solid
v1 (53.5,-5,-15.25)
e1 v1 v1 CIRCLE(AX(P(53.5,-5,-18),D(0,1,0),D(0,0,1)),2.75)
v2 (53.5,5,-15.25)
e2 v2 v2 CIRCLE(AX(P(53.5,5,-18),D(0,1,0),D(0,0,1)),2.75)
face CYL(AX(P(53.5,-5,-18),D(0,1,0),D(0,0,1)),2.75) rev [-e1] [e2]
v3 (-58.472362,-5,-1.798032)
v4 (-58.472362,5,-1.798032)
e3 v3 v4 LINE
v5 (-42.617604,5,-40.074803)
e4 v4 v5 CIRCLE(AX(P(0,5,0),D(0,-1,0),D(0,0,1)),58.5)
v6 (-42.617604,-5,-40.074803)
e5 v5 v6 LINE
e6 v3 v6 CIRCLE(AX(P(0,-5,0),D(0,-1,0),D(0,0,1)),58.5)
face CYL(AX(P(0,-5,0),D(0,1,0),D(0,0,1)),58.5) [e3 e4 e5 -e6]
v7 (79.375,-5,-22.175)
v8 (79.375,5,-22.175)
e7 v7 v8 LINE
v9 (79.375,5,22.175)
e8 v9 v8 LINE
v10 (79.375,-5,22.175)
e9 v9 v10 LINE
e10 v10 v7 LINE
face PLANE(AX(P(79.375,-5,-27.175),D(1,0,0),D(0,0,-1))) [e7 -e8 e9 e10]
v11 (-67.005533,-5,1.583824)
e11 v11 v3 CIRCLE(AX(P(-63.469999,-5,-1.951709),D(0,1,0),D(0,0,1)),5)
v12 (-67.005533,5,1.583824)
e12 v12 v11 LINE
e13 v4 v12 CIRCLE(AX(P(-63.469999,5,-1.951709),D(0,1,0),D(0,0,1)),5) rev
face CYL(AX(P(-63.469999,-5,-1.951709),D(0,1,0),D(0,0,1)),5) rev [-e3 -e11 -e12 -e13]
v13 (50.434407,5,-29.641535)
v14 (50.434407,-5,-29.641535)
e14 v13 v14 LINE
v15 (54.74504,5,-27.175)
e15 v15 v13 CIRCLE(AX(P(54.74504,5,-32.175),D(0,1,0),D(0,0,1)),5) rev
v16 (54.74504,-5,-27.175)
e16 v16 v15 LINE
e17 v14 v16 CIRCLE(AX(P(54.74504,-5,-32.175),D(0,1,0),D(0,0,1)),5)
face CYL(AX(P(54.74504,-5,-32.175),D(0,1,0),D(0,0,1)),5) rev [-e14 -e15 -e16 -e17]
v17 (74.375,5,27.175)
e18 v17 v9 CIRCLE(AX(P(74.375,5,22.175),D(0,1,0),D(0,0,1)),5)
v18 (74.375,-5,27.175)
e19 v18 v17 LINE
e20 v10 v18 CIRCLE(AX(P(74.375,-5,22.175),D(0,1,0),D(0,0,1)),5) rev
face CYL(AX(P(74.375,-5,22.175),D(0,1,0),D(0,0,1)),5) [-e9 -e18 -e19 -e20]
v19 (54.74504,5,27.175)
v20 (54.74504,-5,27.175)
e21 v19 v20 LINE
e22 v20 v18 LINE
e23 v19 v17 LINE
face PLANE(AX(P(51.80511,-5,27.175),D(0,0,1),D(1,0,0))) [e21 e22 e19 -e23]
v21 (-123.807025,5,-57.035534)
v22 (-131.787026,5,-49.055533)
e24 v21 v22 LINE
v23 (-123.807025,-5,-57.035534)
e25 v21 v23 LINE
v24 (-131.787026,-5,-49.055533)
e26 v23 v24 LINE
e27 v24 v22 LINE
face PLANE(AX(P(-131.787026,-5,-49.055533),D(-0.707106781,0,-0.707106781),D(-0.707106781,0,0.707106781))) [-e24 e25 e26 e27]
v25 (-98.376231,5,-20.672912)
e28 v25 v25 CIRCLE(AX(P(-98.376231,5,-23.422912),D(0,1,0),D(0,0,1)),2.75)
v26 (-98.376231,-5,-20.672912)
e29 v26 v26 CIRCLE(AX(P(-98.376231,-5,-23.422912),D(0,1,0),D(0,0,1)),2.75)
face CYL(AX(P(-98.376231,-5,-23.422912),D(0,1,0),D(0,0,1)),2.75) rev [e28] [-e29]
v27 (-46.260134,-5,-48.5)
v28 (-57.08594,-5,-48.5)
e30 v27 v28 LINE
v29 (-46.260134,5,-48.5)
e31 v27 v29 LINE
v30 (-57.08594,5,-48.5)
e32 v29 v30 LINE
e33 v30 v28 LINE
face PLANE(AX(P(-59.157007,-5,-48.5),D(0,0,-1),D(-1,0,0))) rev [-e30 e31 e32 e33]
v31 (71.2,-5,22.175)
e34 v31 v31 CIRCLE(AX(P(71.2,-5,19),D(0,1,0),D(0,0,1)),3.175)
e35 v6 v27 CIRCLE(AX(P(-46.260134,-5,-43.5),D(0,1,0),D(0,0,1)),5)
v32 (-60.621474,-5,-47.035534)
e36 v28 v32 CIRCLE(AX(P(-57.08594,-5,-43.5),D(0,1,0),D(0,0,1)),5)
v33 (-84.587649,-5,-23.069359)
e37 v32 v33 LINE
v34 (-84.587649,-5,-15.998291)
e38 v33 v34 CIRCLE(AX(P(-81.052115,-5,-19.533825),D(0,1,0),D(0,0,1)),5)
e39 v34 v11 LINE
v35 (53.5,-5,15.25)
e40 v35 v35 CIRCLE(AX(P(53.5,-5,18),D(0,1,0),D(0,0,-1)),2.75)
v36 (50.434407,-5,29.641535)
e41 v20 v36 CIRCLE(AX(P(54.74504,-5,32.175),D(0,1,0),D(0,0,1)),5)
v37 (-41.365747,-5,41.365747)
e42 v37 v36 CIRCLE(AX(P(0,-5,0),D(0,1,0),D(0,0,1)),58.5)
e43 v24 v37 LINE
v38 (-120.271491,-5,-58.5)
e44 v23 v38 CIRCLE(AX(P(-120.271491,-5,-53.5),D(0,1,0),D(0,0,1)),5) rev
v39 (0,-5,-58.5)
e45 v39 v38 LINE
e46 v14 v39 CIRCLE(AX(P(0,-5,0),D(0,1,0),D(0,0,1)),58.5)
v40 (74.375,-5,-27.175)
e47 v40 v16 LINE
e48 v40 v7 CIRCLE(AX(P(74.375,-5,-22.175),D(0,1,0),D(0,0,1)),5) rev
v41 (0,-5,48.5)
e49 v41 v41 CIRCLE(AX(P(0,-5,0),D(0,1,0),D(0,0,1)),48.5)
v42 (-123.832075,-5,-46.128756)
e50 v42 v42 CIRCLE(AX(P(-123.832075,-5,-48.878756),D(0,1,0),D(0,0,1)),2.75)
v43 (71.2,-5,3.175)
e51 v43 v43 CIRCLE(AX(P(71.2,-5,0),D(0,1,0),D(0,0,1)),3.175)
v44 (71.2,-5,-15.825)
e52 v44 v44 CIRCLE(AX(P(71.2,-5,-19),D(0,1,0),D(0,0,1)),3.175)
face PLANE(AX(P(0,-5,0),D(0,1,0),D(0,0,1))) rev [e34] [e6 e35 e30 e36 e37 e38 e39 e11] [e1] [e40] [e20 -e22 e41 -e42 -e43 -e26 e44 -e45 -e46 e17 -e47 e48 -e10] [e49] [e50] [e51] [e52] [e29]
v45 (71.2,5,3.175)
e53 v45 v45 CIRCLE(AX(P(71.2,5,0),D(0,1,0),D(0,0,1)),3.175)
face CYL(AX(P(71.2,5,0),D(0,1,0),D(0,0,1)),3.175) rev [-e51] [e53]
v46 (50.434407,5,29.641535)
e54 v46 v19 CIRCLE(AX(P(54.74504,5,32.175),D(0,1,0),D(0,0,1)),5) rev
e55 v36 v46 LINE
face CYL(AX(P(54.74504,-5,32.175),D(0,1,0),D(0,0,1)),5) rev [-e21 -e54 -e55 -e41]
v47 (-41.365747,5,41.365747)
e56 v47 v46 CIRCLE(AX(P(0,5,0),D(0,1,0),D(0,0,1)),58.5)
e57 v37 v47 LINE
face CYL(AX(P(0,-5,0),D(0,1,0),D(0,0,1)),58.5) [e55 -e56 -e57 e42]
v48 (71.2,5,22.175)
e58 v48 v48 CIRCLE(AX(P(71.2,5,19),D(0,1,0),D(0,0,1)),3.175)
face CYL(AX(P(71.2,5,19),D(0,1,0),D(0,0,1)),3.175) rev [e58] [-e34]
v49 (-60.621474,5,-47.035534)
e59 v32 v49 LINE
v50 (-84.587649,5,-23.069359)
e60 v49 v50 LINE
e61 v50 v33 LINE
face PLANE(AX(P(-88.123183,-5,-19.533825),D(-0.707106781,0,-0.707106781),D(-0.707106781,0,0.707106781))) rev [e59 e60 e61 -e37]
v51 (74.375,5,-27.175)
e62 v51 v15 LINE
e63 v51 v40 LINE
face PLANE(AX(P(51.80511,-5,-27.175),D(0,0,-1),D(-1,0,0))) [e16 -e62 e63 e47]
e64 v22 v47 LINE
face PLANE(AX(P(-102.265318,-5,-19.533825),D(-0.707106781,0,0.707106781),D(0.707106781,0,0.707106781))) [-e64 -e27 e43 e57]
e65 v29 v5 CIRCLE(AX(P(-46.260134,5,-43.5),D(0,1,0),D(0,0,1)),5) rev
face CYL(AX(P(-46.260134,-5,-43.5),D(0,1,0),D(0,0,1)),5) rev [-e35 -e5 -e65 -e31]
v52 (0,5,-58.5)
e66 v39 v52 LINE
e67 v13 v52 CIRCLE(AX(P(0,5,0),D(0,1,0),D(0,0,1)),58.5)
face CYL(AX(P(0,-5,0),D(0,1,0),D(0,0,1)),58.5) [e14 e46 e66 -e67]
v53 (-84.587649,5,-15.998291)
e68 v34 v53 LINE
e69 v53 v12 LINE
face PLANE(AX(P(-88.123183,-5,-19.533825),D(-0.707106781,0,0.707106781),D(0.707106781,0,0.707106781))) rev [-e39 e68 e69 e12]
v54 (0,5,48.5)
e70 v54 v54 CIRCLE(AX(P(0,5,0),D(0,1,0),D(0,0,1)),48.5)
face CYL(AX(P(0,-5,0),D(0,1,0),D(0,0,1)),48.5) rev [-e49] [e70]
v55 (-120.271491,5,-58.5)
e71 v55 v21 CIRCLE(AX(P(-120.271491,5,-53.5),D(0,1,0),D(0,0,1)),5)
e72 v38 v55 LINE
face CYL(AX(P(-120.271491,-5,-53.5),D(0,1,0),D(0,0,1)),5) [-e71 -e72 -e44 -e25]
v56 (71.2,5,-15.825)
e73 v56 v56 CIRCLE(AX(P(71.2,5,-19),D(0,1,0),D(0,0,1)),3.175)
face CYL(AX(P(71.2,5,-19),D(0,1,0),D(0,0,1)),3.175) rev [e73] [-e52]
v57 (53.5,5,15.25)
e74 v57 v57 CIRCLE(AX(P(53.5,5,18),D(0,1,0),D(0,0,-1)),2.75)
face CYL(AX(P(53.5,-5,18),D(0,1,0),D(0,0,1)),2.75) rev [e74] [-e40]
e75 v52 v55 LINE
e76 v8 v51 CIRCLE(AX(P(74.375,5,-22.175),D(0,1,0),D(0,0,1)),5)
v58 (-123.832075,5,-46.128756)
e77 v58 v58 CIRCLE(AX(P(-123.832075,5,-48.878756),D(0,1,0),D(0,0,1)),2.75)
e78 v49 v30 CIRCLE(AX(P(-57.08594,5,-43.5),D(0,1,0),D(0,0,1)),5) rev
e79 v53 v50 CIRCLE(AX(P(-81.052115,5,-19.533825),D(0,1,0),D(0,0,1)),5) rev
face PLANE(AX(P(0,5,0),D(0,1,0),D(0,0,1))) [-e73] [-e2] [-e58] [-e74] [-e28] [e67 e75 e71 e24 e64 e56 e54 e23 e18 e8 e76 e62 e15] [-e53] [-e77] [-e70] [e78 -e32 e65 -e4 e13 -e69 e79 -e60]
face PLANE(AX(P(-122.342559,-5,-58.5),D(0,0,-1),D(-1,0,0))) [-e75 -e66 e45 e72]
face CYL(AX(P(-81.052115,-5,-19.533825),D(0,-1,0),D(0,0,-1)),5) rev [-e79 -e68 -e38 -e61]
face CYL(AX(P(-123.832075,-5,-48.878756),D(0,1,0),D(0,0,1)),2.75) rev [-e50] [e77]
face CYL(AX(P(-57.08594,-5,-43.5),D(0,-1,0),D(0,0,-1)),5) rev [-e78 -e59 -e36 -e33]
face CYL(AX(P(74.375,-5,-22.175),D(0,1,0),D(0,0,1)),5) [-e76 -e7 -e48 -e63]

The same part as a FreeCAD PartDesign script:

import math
import FreeCAD as App
import Part
import Sketcher

V = App.Vector
Q = App.Units.Quantity


def edges_at(feature, points):
    """Names of the edges that pass closest to the given points."""
    edges = feature.Shape.Edges
    near = lambda p: min(range(len(edges)), key=lambda i: edges[i].distToShape(Part.Vertex(*p))[0])
    return sorted({f"Edge{near(p) + 1}" for p in points})

doc = App.newDocument("Part")
body = doc.addObject("PartDesign::Body", "Body")

sketch1 = doc.addObject("Sketcher::SketchObject", "Sketch")
body.addObject(sketch1)
sketch1.AttachmentSupport = (doc.XZ_Plane, [""])
sketch1.MapMode = "FlatFace"
sketch1.addGeometry([
    Part.LineSegment(V(-102.3, -19.5, 0), V(-41.4, 41.4, 0)),
    Part.ArcOfCircle(Part.Circle(V(0, 0, 0), V(0, 0, 1), 58.5), math.radians(28), math.radians(135)),
    Part.LineSegment(V(51.8, 27.2, 0), V(79.4, 27.2, 0)),
    Part.LineSegment(V(79.4, 27.2, 0), V(79.4, -27.2, 0)),
    Part.LineSegment(V(79.4, -27.2, 0), V(51.8, -27.2, 0)),
    Part.ArcOfCircle(Part.Circle(V(0, 0, 0), V(0, 0, 1), 58.5), math.radians(-90), math.radians(-28)),
    Part.LineSegment(V(0, -58.5, 0), V(-122.3, -58.5, 0)),
    Part.LineSegment(V(-122.3, -58.5, 0), V(-131.8, -49.1, 0)),
    Part.LineSegment(V(-131.8, -49.1, 0), V(-102.3, -19.5, 0)),
    Part.Circle(V(0, 0, 0), V(0, 0, 1), 48.5),
    Part.Circle(V(53.5, 18, 0), V(0, 0, 1), 2.8),
    Part.Circle(V(-98.4, -23.4, 0), V(0, 0, 1), 2.8),
    Part.LineSegment(V(-57.4, 11.2, 0), V(-88.1, -19.5, 0)),
    Part.LineSegment(V(-88.1, -19.5, 0), V(-59.2, -48.5, 0)),
    Part.LineSegment(V(-59.2, -48.5, 0), V(-32.7, -48.5, 0)),
    Part.ArcOfCircle(Part.Circle(V(0, 0, 0), V(0, 0, 1), 58.5), math.radians(169), math.radians(236)),
    Part.Circle(V(-123.8, -48.9, 0), V(0, 0, 1), 2.8),
    Part.Circle(V(53.5, -18, 0), V(0, 0, 1), 2.8),
], False)
sketch1.addConstraint([
    Sketcher.Constraint("Tangent", 0, 2, 1, 2),
    Sketcher.Constraint("Coincident", 1, 1, 2, 1),
    Sketcher.Constraint("Coincident", 2, 2, 3, 1),
    Sketcher.Constraint("Coincident", 3, 2, 4, 1),
    Sketcher.Constraint("Coincident", 4, 2, 5, 2),
    Sketcher.Constraint("Tangent", 5, 1, 6, 1),
    Sketcher.Constraint("Coincident", 6, 2, 7, 1),
    Sketcher.Constraint("Coincident", 7, 2, 8, 1),
    Sketcher.Constraint("Coincident", 8, 2, 0, 1),
    Sketcher.Constraint("Coincident", 12, 2, 13, 1),
    Sketcher.Constraint("Coincident", 13, 2, 14, 1),
    Sketcher.Constraint("Coincident", 14, 2, 15, 2),
    Sketcher.Constraint("Coincident", 15, 1, 12, 1),
    Sketcher.Constraint("Horizontal", 2),
    Sketcher.Constraint("Vertical", 3),
    Sketcher.Constraint("Horizontal", 4),
    Sketcher.Constraint("Horizontal", 6),
    Sketcher.Constraint("Horizontal", 14),
    Sketcher.Constraint("Coincident", 1, 3, -1, 1),
    Sketcher.Constraint("Coincident", 5, 3, -1, 1),
    Sketcher.Constraint("Coincident", 9, 3, -1, 1),
    Sketcher.Constraint("Coincident", 15, 3, -1, 1),
    Sketcher.Constraint("Equal", 1, 5),
    Sketcher.Constraint("Equal", 10, 11),
    Sketcher.Constraint("Equal", 5, 15),
    Sketcher.Constraint("Equal", 11, 16),
    Sketcher.Constraint("Equal", 16, 17),
    Sketcher.Constraint("Symmetric", 10, 3, 17, 3, -1),
    Sketcher.Constraint("Perpendicular", 0, 7),
    Sketcher.Constraint("Perpendicular", 7, 8),
    Sketcher.Constraint("Parallel", 8, 12),
    Sketcher.Constraint("Perpendicular", 12, 13),
    Sketcher.Constraint("Horizontal", 8, 2, 12, 2),
    Sketcher.Constraint("Vertical", 1, 1, 4, 2),
    Sketcher.Constraint("Diameter", 9, 97.0),
    Sketcher.Constraint("Diameter", 10, 5.5),
    Sketcher.Constraint("Radius", 1, 58.5),
    Sketcher.Constraint("Angle", 0, Q("45 deg")),
    Sketcher.Constraint("DistanceY", -1, 1, 10, 3, 18.0),
    Sketcher.Constraint("DistanceY", 5, 1, 13, 2, 10.0),
    Sketcher.Constraint("DistanceY", 3, 2, 3, 1, 54.35),
    Sketcher.Constraint("DistanceX", -1, 1, 10, 3, 53.5),
    Sketcher.Constraint("Distance", 8, 41.75),
    Sketcher.Constraint("Distance", 0, 86.125),
    Sketcher.Constraint("DistanceX", -1, 1, 2, 2, 79.375),
    Sketcher.Constraint("DistanceX", 15, 1, 0, 2, 16.058999),
    Sketcher.Constraint("DistanceX", 11, 3, -1, 1, 98.376231),
    Sketcher.Constraint("DistanceY", 11, 3, 0, 2, 64.788659),
    Sketcher.Constraint("DistanceX", 7, 2, 16, 3, 7.954951),
    Sketcher.Constraint("DistanceY", 16, 3, 8, 2, 29.344931),
])
pad1 = doc.addObject("PartDesign::Pad", "Pad")
body.addObject(pad1)
pad1.Profile = sketch1
pad1.Length = 10
pad1.Midplane = True

sketch2 = doc.addObject("Sketcher::SketchObject", "Sketch001")
body.addObject(sketch2)
sketch2.AttachmentSupport = (doc.XZ_Plane, [""])
sketch2.MapMode = "FlatFace"
sketch2.AttachmentOffset = App.Placement(V(0, 0, -5), App.Rotation())
sketch2.addGeometry([
    Part.Circle(V(71.2, -19, 0), V(0, 0, 1), 3.2),
    Part.Circle(V(71.2, 0, 0), V(0, 0, 1), 3.2),
    Part.Circle(V(71.2, 19, 0), V(0, 0, 1), 3.2),
], False)
sketch2.addConstraint([
    Sketcher.Constraint("Equal", 0, 1),
    Sketcher.Constraint("Equal", 1, 2),
    Sketcher.Constraint("Symmetric", 0, 3, 2, 3, -1),
    Sketcher.Constraint("PointOnObject", 1, 3, -1),
    Sketcher.Constraint("Vertical", 0, 3, 1, 3),
    Sketcher.Constraint("Diameter", 0, 6.35),
    Sketcher.Constraint("DistanceY", 0, 3, -1, 1, 19.0),
    Sketcher.Constraint("DistanceX", -1, 1, 0, 3, 71.2),
])
doc.recompute()
hole = doc.addObject("PartDesign::Hole", "Hole")
body.addObject(hole)
hole.Profile = sketch2
hole.ThreadType = "None"
hole.Diameter = 6.35
hole.DepthType = "ThroughAll"
hole.Reversed = True
doc.recompute()

fillet = doc.addObject("PartDesign::Fillet", "Fillet")
body.addObject(fillet)
fillet.Base = (hole, edges_at(hole, [
    (-122.343, 0, -58.5),
    (51.805, 0, -27.175),
    (79.375, 0, -27.175),
    (79.375, 0, 27.175),
    (51.805, 0, 27.175),
    (-88.123, 0, -19.534),
    (-59.157, 0, -48.5),
    (-32.711, 0, -48.5),
    (-57.425, 0, 11.165),
]))
fillet.Radius = 5

doc.recompute()
